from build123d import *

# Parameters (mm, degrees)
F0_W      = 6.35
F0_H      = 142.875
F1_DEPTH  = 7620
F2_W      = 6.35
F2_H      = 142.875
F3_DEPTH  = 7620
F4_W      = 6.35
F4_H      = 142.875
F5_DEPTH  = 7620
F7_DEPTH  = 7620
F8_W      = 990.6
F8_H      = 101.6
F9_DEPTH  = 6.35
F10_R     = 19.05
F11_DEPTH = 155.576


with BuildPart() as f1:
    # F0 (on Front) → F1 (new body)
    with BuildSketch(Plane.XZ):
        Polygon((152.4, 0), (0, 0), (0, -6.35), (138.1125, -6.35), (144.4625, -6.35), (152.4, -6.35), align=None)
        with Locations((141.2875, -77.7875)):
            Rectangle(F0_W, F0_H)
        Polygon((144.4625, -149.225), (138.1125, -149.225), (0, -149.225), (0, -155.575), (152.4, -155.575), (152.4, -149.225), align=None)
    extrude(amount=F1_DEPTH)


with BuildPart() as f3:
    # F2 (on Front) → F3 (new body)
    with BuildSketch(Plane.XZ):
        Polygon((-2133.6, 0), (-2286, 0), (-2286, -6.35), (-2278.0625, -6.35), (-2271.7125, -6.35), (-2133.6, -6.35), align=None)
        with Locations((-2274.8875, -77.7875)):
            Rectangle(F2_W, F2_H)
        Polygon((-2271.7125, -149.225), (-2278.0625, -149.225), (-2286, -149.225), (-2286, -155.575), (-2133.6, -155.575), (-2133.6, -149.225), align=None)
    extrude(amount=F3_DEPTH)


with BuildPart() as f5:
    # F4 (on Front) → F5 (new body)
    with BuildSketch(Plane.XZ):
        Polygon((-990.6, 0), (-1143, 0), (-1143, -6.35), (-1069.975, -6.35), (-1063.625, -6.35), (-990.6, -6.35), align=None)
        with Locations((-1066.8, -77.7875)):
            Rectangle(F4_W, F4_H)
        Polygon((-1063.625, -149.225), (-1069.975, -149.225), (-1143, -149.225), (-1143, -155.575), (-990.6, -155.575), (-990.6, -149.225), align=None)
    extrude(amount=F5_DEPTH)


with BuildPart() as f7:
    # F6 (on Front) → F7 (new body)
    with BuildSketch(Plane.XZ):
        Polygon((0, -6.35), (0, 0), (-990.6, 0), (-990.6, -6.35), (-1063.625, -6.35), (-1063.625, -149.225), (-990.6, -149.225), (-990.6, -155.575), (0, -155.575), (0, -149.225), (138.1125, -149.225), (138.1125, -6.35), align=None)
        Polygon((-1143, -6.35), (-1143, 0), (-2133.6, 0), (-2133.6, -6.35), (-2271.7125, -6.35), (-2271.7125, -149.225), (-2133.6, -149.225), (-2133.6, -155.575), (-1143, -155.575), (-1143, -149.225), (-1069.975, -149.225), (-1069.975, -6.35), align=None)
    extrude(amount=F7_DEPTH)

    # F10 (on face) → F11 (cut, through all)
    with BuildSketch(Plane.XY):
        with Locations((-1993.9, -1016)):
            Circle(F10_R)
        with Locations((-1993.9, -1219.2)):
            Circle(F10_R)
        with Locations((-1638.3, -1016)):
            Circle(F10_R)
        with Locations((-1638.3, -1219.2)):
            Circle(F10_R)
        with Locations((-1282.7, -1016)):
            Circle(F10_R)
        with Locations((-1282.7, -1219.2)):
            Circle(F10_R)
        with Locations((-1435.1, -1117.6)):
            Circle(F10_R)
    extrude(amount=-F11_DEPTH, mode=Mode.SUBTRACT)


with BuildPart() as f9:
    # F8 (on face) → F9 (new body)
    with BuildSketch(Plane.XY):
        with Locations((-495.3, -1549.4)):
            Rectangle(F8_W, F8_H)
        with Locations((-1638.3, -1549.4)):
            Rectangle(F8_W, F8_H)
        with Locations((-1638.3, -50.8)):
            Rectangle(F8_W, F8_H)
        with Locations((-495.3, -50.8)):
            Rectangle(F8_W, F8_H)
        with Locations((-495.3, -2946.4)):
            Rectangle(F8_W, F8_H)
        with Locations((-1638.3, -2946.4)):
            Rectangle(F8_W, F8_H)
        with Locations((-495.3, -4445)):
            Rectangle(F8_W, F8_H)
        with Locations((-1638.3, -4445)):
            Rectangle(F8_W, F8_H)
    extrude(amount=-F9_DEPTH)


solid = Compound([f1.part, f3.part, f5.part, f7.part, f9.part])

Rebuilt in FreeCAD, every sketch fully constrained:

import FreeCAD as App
import Part
import Sketcher
Q = App.Units.Quantity


def add_polygon(sketch, points):
    """Adds a closed chain of lines whose ends are joined by coincident constraints."""
    first, n = sketch.GeometryCount, len(points)
    for a, b in zip(points, points[1:] + points[:1]):
        sketch.addGeometry(Part.LineSegment(App.Vector(*a, 0), App.Vector(*b, 0)), False)
    for i in range(n):
        sketch.addConstraint(Sketcher.Constraint("Coincident", first + i, 2, first + (i + 1) % n, 1))

doc = App.newDocument("Part")
body = doc.addObject("PartDesign::Body", "Body")

# Sketch on XZ plane
sketch1 = doc.addObject("Sketcher::SketchObject", "Sketch")
body.addObject(sketch1)
sketch1.AttachmentSupport = (doc.XZ_Plane, [""])
sketch1.MapMode = "FlatFace"
add_polygon(sketch1, [(152, 0), (0, 0), (0, -6), (138, -6), (138, -149), (0, -149), (0, -156), (152, -156), (152, -149), (144, -149), (144, -6), (152, -6)])  # lines 0-11
sketch1.addConstraint(Sketcher.Constraint("Horizontal", 0))
sketch1.addConstraint(Sketcher.Constraint("Vertical", 1))
sketch1.addConstraint(Sketcher.Constraint("Horizontal", 2))
sketch1.addConstraint(Sketcher.Constraint("Vertical", 3))
sketch1.addConstraint(Sketcher.Constraint("Horizontal", 4))
sketch1.addConstraint(Sketcher.Constraint("Vertical", 5))
sketch1.addConstraint(Sketcher.Constraint("Horizontal", 6))
sketch1.addConstraint(Sketcher.Constraint("Vertical", 7))
sketch1.addConstraint(Sketcher.Constraint("Horizontal", 8))
sketch1.addConstraint(Sketcher.Constraint("Vertical", 9))
sketch1.addConstraint(Sketcher.Constraint("Horizontal", 10))
sketch1.addConstraint(Sketcher.Constraint("Vertical", 11))
sketch1.addConstraint(Sketcher.Constraint("Coincident", 0, 2, -1, 1))
sketch1.addConstraint(Sketcher.Constraint("PointOnObject", 4, 2, -2))
sketch1.addConstraint(Sketcher.Constraint("Horizontal", 4, 2, 7, 2))
sketch1.addConstraint(Sketcher.Constraint("Horizontal", 2, 2, 9, 2))
sketch1.addConstraint(Sketcher.Constraint("Vertical", 7, 2, 10, 2))
sketch1.addConstraint(Sketcher.Constraint("Equal", 1, 5))
sketch1.addConstraint(Sketcher.Constraint("DistanceX", 0, 2, 0, 1, Q("6 in")))
sketch1.addConstraint(Sketcher.Constraint("DistanceY", 1, 2, 1, 1, Q("0.25 in")))
sketch1.addConstraint(Sketcher.Constraint("DistanceX", 2, 1, 2, 2, Q("5.4375 in")))
sketch1.addConstraint(Sketcher.Constraint("DistanceX", 8, 2, 8, 1, Q("0.3125 in")))
sketch1.addConstraint(Sketcher.Constraint("DistanceY", 3, 2, 3, 1, Q("5.625 in")))
pad1 = doc.addObject("PartDesign::Pad", "Pad")
body.addObject(pad1)
pad1.Profile = sketch1
pad1.Length = Q("300 in")
body2 = doc.addObject("PartDesign::Body", "Body001")

# Sketch on XZ plane
sketch2 = doc.addObject("Sketcher::SketchObject", "Sketch001")
body2.addObject(sketch2)
sketch2.AttachmentSupport = (doc.getObject("XZ_Plane001"), [""])
sketch2.MapMode = "FlatFace"
add_polygon(sketch2, [(-2134, 0), (-2286, 0), (-2286, -6), (-2278, -6), (-2278, -149), (-2286, -149), (-2286, -156), (-2134, -156), (-2134, -149), (-2272, -149), (-2272, -6), (-2134, -6)])  # lines 0-11
sketch2.addConstraint(Sketcher.Constraint("Horizontal", 0))
sketch2.addConstraint(Sketcher.Constraint("Vertical", 1))
sketch2.addConstraint(Sketcher.Constraint("Horizontal", 2))
sketch2.addConstraint(Sketcher.Constraint("Vertical", 3))
sketch2.addConstraint(Sketcher.Constraint("Horizontal", 4))
sketch2.addConstraint(Sketcher.Constraint("Vertical", 5))
sketch2.addConstraint(Sketcher.Constraint("Horizontal", 6))
sketch2.addConstraint(Sketcher.Constraint("Vertical", 7))
sketch2.addConstraint(Sketcher.Constraint("Horizontal", 8))
sketch2.addConstraint(Sketcher.Constraint("Vertical", 9))
sketch2.addConstraint(Sketcher.Constraint("Horizontal", 10))
sketch2.addConstraint(Sketcher.Constraint("Vertical", 11))
sketch2.addConstraint(Sketcher.Constraint("PointOnObject", 0, 2, -1))
sketch2.addConstraint(Sketcher.Constraint("Horizontal", 4, 2, 7, 2))
sketch2.addConstraint(Sketcher.Constraint("Horizontal", 2, 2, 9, 2))
sketch2.addConstraint(Sketcher.Constraint("Vertical", 1, 2, 4, 2))
sketch2.addConstraint(Sketcher.Constraint("Vertical", 7, 2, 10, 2))
sketch2.addConstraint(Sketcher.Constraint("Equal", 1, 5))
sketch2.addConstraint(Sketcher.Constraint("DistanceX", 0, 2, 0, 1, Q("6 in")))
sketch2.addConstraint(Sketcher.Constraint("DistanceX", 0, 2, -1, 1, Q("90 in")))
sketch2.addConstraint(Sketcher.Constraint("DistanceY", 1, 2, 1, 1, Q("0.25 in")))
sketch2.addConstraint(Sketcher.Constraint("DistanceX", 2, 1, 2, 2, Q("0.3125 in")))
sketch2.addConstraint(Sketcher.Constraint("DistanceX", 8, 2, 8, 1, Q("5.4375 in")))
sketch2.addConstraint(Sketcher.Constraint("DistanceY", 3, 2, 3, 1, Q("5.625 in")))
pad2 = doc.addObject("PartDesign::Pad", "Pad001")
body2.addObject(pad2)
pad2.Profile = sketch2
pad2.Length = Q("300 in")
body3 = doc.addObject("PartDesign::Body", "Body002")

# Sketch on XZ plane
sketch3 = doc.addObject("Sketcher::SketchObject", "Sketch002")
body3.addObject(sketch3)
sketch3.AttachmentSupport = (doc.getObject("XZ_Plane002"), [""])
sketch3.MapMode = "FlatFace"
add_polygon(sketch3, [(-991, 0), (-1143, 0), (-1143, -6), (-1070, -6), (-1070, -149), (-1143, -149), (-1143, -156), (-991, -156), (-991, -149), (-1064, -149), (-1064, -6), (-991, -6)])  # lines 0-11
sketch3.addConstraint(Sketcher.Constraint("Horizontal", 0))
sketch3.addConstraint(Sketcher.Constraint("Vertical", 1))
sketch3.addConstraint(Sketcher.Constraint("Horizontal", 2))
sketch3.addConstraint(Sketcher.Constraint("Vertical", 3))
sketch3.addConstraint(Sketcher.Constraint("Horizontal", 4))
sketch3.addConstraint(Sketcher.Constraint("Vertical", 5))
sketch3.addConstraint(Sketcher.Constraint("Horizontal", 6))
sketch3.addConstraint(Sketcher.Constraint("Vertical", 7))
sketch3.addConstraint(Sketcher.Constraint("Horizontal", 8))
sketch3.addConstraint(Sketcher.Constraint("Vertical", 9))
sketch3.addConstraint(Sketcher.Constraint("Horizontal", 10))
sketch3.addConstraint(Sketcher.Constraint("Vertical", 11))
sketch3.addConstraint(Sketcher.Constraint("PointOnObject", 0, 2, -1))
sketch3.addConstraint(Sketcher.Constraint("Horizontal", 4, 2, 7, 2))
sketch3.addConstraint(Sketcher.Constraint("Horizontal", 2, 2, 9, 2))
sketch3.addConstraint(Sketcher.Constraint("Vertical", 1, 2, 4, 2))
sketch3.addConstraint(Sketcher.Constraint("Vertical", 7, 2, 10, 2))
sketch3.addConstraint(Sketcher.Constraint("Equal", 4, 8))
sketch3.addConstraint(Sketcher.Constraint("Equal", 1, 5))
sketch3.addConstraint(Sketcher.Constraint("DistanceX", 0, 2, 0, 1, Q("6 in")))
sketch3.addConstraint(Sketcher.Constraint("DistanceX", 0, 2, -1, 1, Q("45 in")))
sketch3.addConstraint(Sketcher.Constraint("DistanceY", 1, 2, 1, 1, Q("0.25 in")))
sketch3.addConstraint(Sketcher.Constraint("DistanceX", 2, 1, 2, 2, Q("2.875 in")))
sketch3.addConstraint(Sketcher.Constraint("DistanceY", 3, 2, 3, 1, Q("5.625 in")))
pad3 = doc.addObject("PartDesign::Pad", "Pad002")
body3.addObject(pad3)
pad3.Profile = sketch3
pad3.Length = Q("300 in")
body4 = doc.addObject("PartDesign::Body", "Body003")
body4.AllowCompound = True

# Sketch on XZ plane
sketch4 = doc.addObject("Sketcher::SketchObject", "Sketch003")
body4.addObject(sketch4)
sketch4.AttachmentSupport = (doc.getObject("XZ_Plane003"), [""])
sketch4.MapMode = "FlatFace"
add_polygon(sketch4, [(0, -6), (0, 0), (-991, 0), (-991, -6), (-1064, -6), (-1064, -149), (-991, -149), (-991, -156), (0, -156), (0, -149), (138, -149), (138, -6)])  # lines 0-11
add_polygon(sketch4, [(-1143, -6), (-1143, 0), (-2134, 0), (-2134, -6), (-2272, -6), (-2272, -149), (-2134, -149), (-2134, -156), (-1143, -156), (-1143, -149), (-1070, -149), (-1070, -6)])  # lines 12-23
sketch4.addConstraint(Sketcher.Constraint("Vertical", 0))
sketch4.addConstraint(Sketcher.Constraint("Horizontal", 1))
sketch4.addConstraint(Sketcher.Constraint("Vertical", 2))
sketch4.addConstraint(Sketcher.Constraint("Horizontal", 3))
sketch4.addConstraint(Sketcher.Constraint("Vertical", 4))
sketch4.addConstraint(Sketcher.Constraint("Horizontal", 5))
sketch4.addConstraint(Sketcher.Constraint("Vertical", 6))
sketch4.addConstraint(Sketcher.Constraint("Horizontal", 7))
sketch4.addConstraint(Sketcher.Constraint("Vertical", 8))
sketch4.addConstraint(Sketcher.Constraint("Horizontal", 9))
sketch4.addConstraint(Sketcher.Constraint("Vertical", 10))
sketch4.addConstraint(Sketcher.Constraint("Horizontal", 11))
sketch4.addConstraint(Sketcher.Constraint("Vertical", 12))
sketch4.addConstraint(Sketcher.Constraint("Horizontal", 13))
sketch4.addConstraint(Sketcher.Constraint("Vertical", 14))
sketch4.addConstraint(Sketcher.Constraint("Horizontal", 15))
sketch4.addConstraint(Sketcher.Constraint("Vertical", 16))
sketch4.addConstraint(Sketcher.Constraint("Horizontal", 17))
sketch4.addConstraint(Sketcher.Constraint("Vertical", 18))
sketch4.addConstraint(Sketcher.Constraint("Horizontal", 19))
sketch4.addConstraint(Sketcher.Constraint("Vertical", 20))
sketch4.addConstraint(Sketcher.Constraint("Horizontal", 21))
sketch4.addConstraint(Sketcher.Constraint("Vertical", 22))
sketch4.addConstraint(Sketcher.Constraint("Horizontal", 23))
sketch4.addConstraint(Sketcher.Constraint("Coincident", 0, 2, -1, 1))
sketch4.addConstraint(Sketcher.Constraint("PointOnObject", 7, 2, -2))
sketch4.addConstraint(Sketcher.Constraint("PointOnObject", 12, 2, -1))
sketch4.addConstraint(Sketcher.Constraint("Horizontal", 5, 2, 8, 2))
sketch4.addConstraint(Sketcher.Constraint("Horizontal", 3, 2, 10, 2))
sketch4.addConstraint(Sketcher.Constraint("Horizontal", 11, 2, 14, 2))
sketch4.addConstraint(Sketcher.Constraint("Horizontal", 9, 2, 16, 2))
sketch4.addConstraint(Sketcher.Constraint("Horizontal", 7, 2, 18, 2))
sketch4.addConstraint(Sketcher.Constraint("Horizontal", 17, 2, 20, 2))
sketch4.addConstraint(Sketcher.Constraint("Horizontal", 15, 2, 22, 2))
sketch4.addConstraint(Sketcher.Constraint("Vertical", 2, 2, 5, 2))
sketch4.addConstraint(Sketcher.Constraint("Vertical", 14, 2, 17, 2))
sketch4.addConstraint(Sketcher.Constraint("Vertical", 12, 2, 19, 2))
sketch4.addConstraint(Sketcher.Constraint("Equal", 7, 13))
sketch4.addConstraint(Sketcher.Constraint("Equal", 11, 15))
sketch4.addConstraint(Sketcher.Constraint("Equal", 5, 21))
sketch4.addConstraint(Sketcher.Constraint("Equal", 2, 6))
sketch4.addConstraint(Sketcher.Constraint("DistanceX", 1, 2, 1, 1, Q("39 in")))
sketch4.addConstraint(Sketcher.Constraint("DistanceX", 12, 2, -1, 1, Q("45 in")))
sketch4.addConstraint(Sketcher.Constraint("DistanceY", 0, 1, 0, 2, Q("0.25 in")))
sketch4.addConstraint(Sketcher.Constraint("DistanceX", 3, 2, 3, 1, Q("2.875 in")))
sketch4.addConstraint(Sketcher.Constraint("DistanceX", 9, 1, 9, 2, Q("5.4375 in")))
sketch4.addConstraint(Sketcher.Constraint("DistanceY", 4, 2, 4, 1, Q("5.625 in")))
pad4 = doc.addObject("PartDesign::Pad", "Pad003")
body4.addObject(pad4)
pad4.Profile = sketch4
pad4.Length = Q("300 in")

# Sketch on XY plane
sketch5 = doc.addObject("Sketcher::SketchObject", "Sketch004")
body4.addObject(sketch5)
sketch5.AttachmentSupport = (doc.getObject("XY_Plane003"), [""])
sketch5.MapMode = "FlatFace"
sketch5.addGeometry(Part.Circle(App.Vector(-1994, -1016, 0), App.Vector(0, 0, 1), 19), False)
sketch5.addGeometry(Part.Circle(App.Vector(-1994, -1219, 0), App.Vector(0, 0, 1), 19), False)
sketch5.addGeometry(Part.Circle(App.Vector(-1638, -1016, 0), App.Vector(0, 0, 1), 19), False)
sketch5.addGeometry(Part.Circle(App.Vector(-1638, -1219, 0), App.Vector(0, 0, 1), 19), False)
sketch5.addGeometry(Part.Circle(App.Vector(-1283, -1016, 0), App.Vector(0, 0, 1), 19), False)
sketch5.addGeometry(Part.Circle(App.Vector(-1283, -1219, 0), App.Vector(0, 0, 1), 19), False)
sketch5.addGeometry(Part.Circle(App.Vector(-1435, -1118, 0), App.Vector(0, 0, 1), 19), False)
sketch5.addConstraint(Sketcher.Constraint("Equal", 0, 1))
sketch5.addConstraint(Sketcher.Constraint("Equal", 1, 2))
sketch5.addConstraint(Sketcher.Constraint("Equal", 2, 3))
sketch5.addConstraint(Sketcher.Constraint("Equal", 3, 4))
sketch5.addConstraint(Sketcher.Constraint("Equal", 4, 5))
sketch5.addConstraint(Sketcher.Constraint("Equal", 5, 6))
sketch5.addConstraint(Sketcher.Constraint("Horizontal", 0, 3, 2, 3))
sketch5.addConstraint(Sketcher.Constraint("Horizontal", 1, 3, 3, 3))
sketch5.addConstraint(Sketcher.Constraint("Horizontal", 2, 3, 4, 3))
sketch5.addConstraint(Sketcher.Constraint("Horizontal", 3, 3, 5, 3))
sketch5.addConstraint(Sketcher.Constraint("Vertical", 0, 3, 1, 3))
sketch5.addConstraint(Sketcher.Constraint("Vertical", 2, 3, 3, 3))
sketch5.addConstraint(Sketcher.Constraint("Vertical", 4, 3, 5, 3))
sketch5.addConstraint(Sketcher.Constraint("Diameter", 0, Q("1.5 in")))
sketch5.addConstraint(Sketcher.Constraint("DistanceY", 0, 3, -1, 1, Q("40 in")))
sketch5.addConstraint(Sketcher.Constraint("DistanceY", 1, 3, -1, 1, Q("48 in")))
sketch5.addConstraint(Sketcher.Constraint("DistanceY", 6, 3, -1, 1, Q("44 in")))
sketch5.addConstraint(Sketcher.Constraint("DistanceX", 0, 3, 2, 3, Q("14 in")))
sketch5.addConstraint(Sketcher.Constraint("DistanceX", 2, 3, 4, 3, Q("14 in")))
sketch5.addConstraint(Sketcher.Constraint("DistanceX", 6, 3, 4, 3, Q("6 in")))
sketch5.addConstraint(Sketcher.Constraint("DistanceX", 0, 3, -1, 1, Q("78.5 in")))
pocket1 = doc.addObject("PartDesign::Pocket", "Pocket")
body4.addObject(pocket1)
pocket1.Profile = sketch5
pocket1.Type = "ThroughAll"
body5 = doc.addObject("PartDesign::Body", "Body004")
body5.AllowCompound = True

# Sketch on XY plane
sketch6 = doc.addObject("Sketcher::SketchObject", "Sketch005")
body5.addObject(sketch6)
sketch6.AttachmentSupport = (doc.getObject("XY_Plane004"), [""])
sketch6.MapMode = "FlatFace"
add_polygon(sketch6, [(-991, -1499), (-991, -1600), (0, -1600), (0, -1499)])  # lines 0-3
add_polygon(sketch6, [(-2134, -1499), (-2134, -1600), (-1143, -1600), (-1143, -1499)])  # lines 4-7
add_polygon(sketch6, [(-2134, 0), (-2134, -102), (-1143, -102), (-1143, 0)])  # lines 8-11
add_polygon(sketch6, [(-991, 0), (-991, -102), (0, -102), (0, 0)])  # lines 12-15
add_polygon(sketch6, [(-991, -2896), (-991, -2997), (0, -2997), (0, -2896)])  # lines 16-19
add_polygon(sketch6, [(-2134, -2896), (-2134, -2997), (-1143, -2997), (-1143, -2896)])  # lines 20-23
add_polygon(sketch6, [(-991, -4394), (-991, -4496), (0, -4496), (0, -4394)])  # lines 24-27
add_polygon(sketch6, [(-2134, -4394), (-2134, -4496), (-1143, -4496), (-1143, -4394)])  # lines 28-31
sketch6.addConstraint(Sketcher.Constraint("Vertical", 0))
sketch6.addConstraint(Sketcher.Constraint("Horizontal", 1))
sketch6.addConstraint(Sketcher.Constraint("Vertical", 2))
sketch6.addConstraint(Sketcher.Constraint("Horizontal", 3))
sketch6.addConstraint(Sketcher.Constraint("Vertical", 4))
sketch6.addConstraint(Sketcher.Constraint("Horizontal", 5))
sketch6.addConstraint(Sketcher.Constraint("Vertical", 6))
sketch6.addConstraint(Sketcher.Constraint("Horizontal", 7))
sketch6.addConstraint(Sketcher.Constraint("Vertical", 8))
sketch6.addConstraint(Sketcher.Constraint("Horizontal", 9))
sketch6.addConstraint(Sketcher.Constraint("Vertical", 10))
sketch6.addConstraint(Sketcher.Constraint("Horizontal", 11))
sketch6.addConstraint(Sketcher.Constraint("Vertical", 12))
sketch6.addConstraint(Sketcher.Constraint("Horizontal", 13))
sketch6.addConstraint(Sketcher.Constraint("Vertical", 14))
sketch6.addConstraint(Sketcher.Constraint("Horizontal", 15))
sketch6.addConstraint(Sketcher.Constraint("Vertical", 16))
sketch6.addConstraint(Sketcher.Constraint("Horizontal", 17))
sketch6.addConstraint(Sketcher.Constraint("Vertical", 18))
sketch6.addConstraint(Sketcher.Constraint("Horizontal", 19))
sketch6.addConstraint(Sketcher.Constraint("Vertical", 20))
sketch6.addConstraint(Sketcher.Constraint("Horizontal", 21))
sketch6.addConstraint(Sketcher.Constraint("Vertical", 22))
sketch6.addConstraint(Sketcher.Constraint("Horizontal", 23))
sketch6.addConstraint(Sketcher.Constraint("Vertical", 24))
sketch6.addConstraint(Sketcher.Constraint("Horizontal", 25))
sketch6.addConstraint(Sketcher.Constraint("Vertical", 26))
sketch6.addConstraint(Sketcher.Constraint("Horizontal", 27))
sketch6.addConstraint(Sketcher.Constraint("Vertical", 28))
sketch6.addConstraint(Sketcher.Constraint("Horizontal", 29))
sketch6.addConstraint(Sketcher.Constraint("Vertical", 30))
sketch6.addConstraint(Sketcher.Constraint("Horizontal", 31))
sketch6.addConstraint(Sketcher.Constraint("Coincident", 14, 2, -1, 1))
sketch6.addConstraint(Sketcher.Constraint("PointOnObject", 1, 2, -2))
sketch6.addConstraint(Sketcher.Constraint("PointOnObject", 10, 2, -1))
sketch6.addConstraint(Sketcher.Constraint("PointOnObject", 17, 2, -2))
sketch6.addConstraint(Sketcher.Constraint("PointOnObject", 25, 2, -2))
sketch6.addConstraint(Sketcher.Constraint("Horizontal", 1, 2, 4, 2))
sketch6.addConstraint(Sketcher.Constraint("Horizontal", 3, 2, 6, 2))
sketch6.addConstraint(Sketcher.Constraint("Horizontal", 9, 2, 12, 2))
sketch6.addConstraint(Sketcher.Constraint("Horizontal", 17, 2, 20, 2))
sketch6.addConstraint(Sketcher.Constraint("Horizontal", 19, 2, 22, 2))
sketch6.addConstraint(Sketcher.Constraint("Horizontal", 25, 2, 28, 2))
sketch6.addConstraint(Sketcher.Constraint("Horizontal", 27, 2, 30, 2))
sketch6.addConstraint(Sketcher.Constraint("Vertical", 7, 2, 8, 2))
sketch6.addConstraint(Sketcher.Constraint("Vertical", 6, 2, 9, 2))
sketch6.addConstraint(Sketcher.Constraint("Vertical", 3, 2, 12, 2))
sketch6.addConstraint(Sketcher.Constraint("Vertical", 15, 2, 16, 2))
sketch6.addConstraint(Sketcher.Constraint("Vertical", 11, 2, 20, 2))
sketch6.addConstraint(Sketcher.Constraint("Vertical", 10, 2, 21, 2))
sketch6.addConstraint(Sketcher.Constraint("Vertical", 19, 2, 24, 2))
sketch6.addConstraint(Sketcher.Constraint("Vertical", 23, 2, 28, 2))
sketch6.addConstraint(Sketcher.Constraint("Vertical", 22, 2, 29, 2))
sketch6.addConstraint(Sketcher.Constraint("Equal", 3, 5))
sketch6.addConstraint(Sketcher.Constraint("Equal", 6, 8))
sketch6.addConstraint(Sketcher.Constraint("Equal", 14, 16))
sketch6.addConstraint(Sketcher.Constraint("Equal", 22, 24))
sketch6.addConstraint(Sketcher.Constraint("DistanceX", 1, 1, 1, 2, Q("39 in")))
sketch6.addConstraint(Sketcher.Constraint("DistanceY", 0, 2, 0, 1, Q("4 in")))
sketch6.addConstraint(Sketcher.Constraint("DistanceY", 0, 2, -1, 1, Q("63 in")))
sketch6.addConstraint(Sketcher.Constraint("DistanceX", 4, 2, -1, 1, Q("84 in")))
sketch6.addConstraint(Sketcher.Constraint("DistanceY", 16, 2, -1, 1, Q("118 in")))
sketch6.addConstraint(Sketcher.Constraint("DistanceY", 24, 2, -1, 1, Q("177 in")))
pad5 = doc.addObject("PartDesign::Pad", "Pad004")
body5.addObject(pad5)
pad5.Profile = sketch6
pad5.Length = Q("0.25 in")
pad5.Reversed = True

doc.recompute()
